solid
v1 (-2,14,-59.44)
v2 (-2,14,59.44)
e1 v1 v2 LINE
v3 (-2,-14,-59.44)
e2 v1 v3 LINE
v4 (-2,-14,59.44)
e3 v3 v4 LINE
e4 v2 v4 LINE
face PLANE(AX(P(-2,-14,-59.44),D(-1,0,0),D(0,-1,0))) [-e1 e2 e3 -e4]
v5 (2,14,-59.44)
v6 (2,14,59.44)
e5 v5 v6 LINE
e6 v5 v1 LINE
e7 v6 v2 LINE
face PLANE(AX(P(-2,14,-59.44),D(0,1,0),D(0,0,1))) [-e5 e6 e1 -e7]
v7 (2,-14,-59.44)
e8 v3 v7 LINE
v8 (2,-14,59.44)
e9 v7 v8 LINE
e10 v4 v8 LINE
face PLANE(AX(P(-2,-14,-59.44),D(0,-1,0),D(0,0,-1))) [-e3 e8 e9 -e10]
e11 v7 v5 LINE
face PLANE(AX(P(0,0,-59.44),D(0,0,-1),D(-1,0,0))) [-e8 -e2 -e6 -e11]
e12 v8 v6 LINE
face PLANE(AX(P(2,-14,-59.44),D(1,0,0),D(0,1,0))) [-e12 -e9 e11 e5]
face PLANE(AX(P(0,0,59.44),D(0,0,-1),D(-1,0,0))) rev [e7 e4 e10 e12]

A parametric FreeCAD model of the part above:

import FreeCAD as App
import Part
import Sketcher
Q = App.Units.Quantity

doc = App.newDocument("Part")
body = doc.addObject("PartDesign::Body", "Body")

sketch1 = body.newObject("Sketcher::SketchObject", "Sketch")
sketch1.AttachmentSupport = (doc.getObject("XY_Plane"), [""])
sketch1.MapMode = "FlatFace"
sketch1.addGeometry([
    Part.LineSegment(App.Vector(-2, 14, 0), App.Vector(-2, -14, 0)),
    Part.LineSegment(App.Vector(-2, -14, 0), App.Vector(2, -14, 0)),
    Part.LineSegment(App.Vector(2, -14, 0), App.Vector(2, 14, 0)),
    Part.LineSegment(App.Vector(2, 14, 0), App.Vector(-2, 14, 0)),
], False)
sketch1.addConstraint([
    Sketcher.Constraint("Coincident", 0, 2, 1, 1),
    Sketcher.Constraint("Coincident", 1, 2, 2, 1),
    Sketcher.Constraint("Coincident", 2, 2, 3, 1),
    Sketcher.Constraint("Coincident", 3, 2, 0, 1),
    Sketcher.Constraint("Vertical", 0),
    Sketcher.Constraint("Horizontal", 1),
    Sketcher.Constraint("Vertical", 2),
    Sketcher.Constraint("Horizontal", 3),
    Sketcher.Constraint("Symmetric", 0, 2, 2, 2, -1, 1),
    Sketcher.Constraint("DistanceX", 1, 1, 1, 2, Q("4 mm")),
    Sketcher.Constraint("DistanceY", 0, 2, 0, 1, Q("28 mm")),
])
pad1 = body.newObject("PartDesign::Pad", "Pad")
pad1.Profile = sketch1
pad1.Type = "TwoLengths"
pad1.Length = 59.44
pad1.Length2 = 59.44

doc.recompute()
